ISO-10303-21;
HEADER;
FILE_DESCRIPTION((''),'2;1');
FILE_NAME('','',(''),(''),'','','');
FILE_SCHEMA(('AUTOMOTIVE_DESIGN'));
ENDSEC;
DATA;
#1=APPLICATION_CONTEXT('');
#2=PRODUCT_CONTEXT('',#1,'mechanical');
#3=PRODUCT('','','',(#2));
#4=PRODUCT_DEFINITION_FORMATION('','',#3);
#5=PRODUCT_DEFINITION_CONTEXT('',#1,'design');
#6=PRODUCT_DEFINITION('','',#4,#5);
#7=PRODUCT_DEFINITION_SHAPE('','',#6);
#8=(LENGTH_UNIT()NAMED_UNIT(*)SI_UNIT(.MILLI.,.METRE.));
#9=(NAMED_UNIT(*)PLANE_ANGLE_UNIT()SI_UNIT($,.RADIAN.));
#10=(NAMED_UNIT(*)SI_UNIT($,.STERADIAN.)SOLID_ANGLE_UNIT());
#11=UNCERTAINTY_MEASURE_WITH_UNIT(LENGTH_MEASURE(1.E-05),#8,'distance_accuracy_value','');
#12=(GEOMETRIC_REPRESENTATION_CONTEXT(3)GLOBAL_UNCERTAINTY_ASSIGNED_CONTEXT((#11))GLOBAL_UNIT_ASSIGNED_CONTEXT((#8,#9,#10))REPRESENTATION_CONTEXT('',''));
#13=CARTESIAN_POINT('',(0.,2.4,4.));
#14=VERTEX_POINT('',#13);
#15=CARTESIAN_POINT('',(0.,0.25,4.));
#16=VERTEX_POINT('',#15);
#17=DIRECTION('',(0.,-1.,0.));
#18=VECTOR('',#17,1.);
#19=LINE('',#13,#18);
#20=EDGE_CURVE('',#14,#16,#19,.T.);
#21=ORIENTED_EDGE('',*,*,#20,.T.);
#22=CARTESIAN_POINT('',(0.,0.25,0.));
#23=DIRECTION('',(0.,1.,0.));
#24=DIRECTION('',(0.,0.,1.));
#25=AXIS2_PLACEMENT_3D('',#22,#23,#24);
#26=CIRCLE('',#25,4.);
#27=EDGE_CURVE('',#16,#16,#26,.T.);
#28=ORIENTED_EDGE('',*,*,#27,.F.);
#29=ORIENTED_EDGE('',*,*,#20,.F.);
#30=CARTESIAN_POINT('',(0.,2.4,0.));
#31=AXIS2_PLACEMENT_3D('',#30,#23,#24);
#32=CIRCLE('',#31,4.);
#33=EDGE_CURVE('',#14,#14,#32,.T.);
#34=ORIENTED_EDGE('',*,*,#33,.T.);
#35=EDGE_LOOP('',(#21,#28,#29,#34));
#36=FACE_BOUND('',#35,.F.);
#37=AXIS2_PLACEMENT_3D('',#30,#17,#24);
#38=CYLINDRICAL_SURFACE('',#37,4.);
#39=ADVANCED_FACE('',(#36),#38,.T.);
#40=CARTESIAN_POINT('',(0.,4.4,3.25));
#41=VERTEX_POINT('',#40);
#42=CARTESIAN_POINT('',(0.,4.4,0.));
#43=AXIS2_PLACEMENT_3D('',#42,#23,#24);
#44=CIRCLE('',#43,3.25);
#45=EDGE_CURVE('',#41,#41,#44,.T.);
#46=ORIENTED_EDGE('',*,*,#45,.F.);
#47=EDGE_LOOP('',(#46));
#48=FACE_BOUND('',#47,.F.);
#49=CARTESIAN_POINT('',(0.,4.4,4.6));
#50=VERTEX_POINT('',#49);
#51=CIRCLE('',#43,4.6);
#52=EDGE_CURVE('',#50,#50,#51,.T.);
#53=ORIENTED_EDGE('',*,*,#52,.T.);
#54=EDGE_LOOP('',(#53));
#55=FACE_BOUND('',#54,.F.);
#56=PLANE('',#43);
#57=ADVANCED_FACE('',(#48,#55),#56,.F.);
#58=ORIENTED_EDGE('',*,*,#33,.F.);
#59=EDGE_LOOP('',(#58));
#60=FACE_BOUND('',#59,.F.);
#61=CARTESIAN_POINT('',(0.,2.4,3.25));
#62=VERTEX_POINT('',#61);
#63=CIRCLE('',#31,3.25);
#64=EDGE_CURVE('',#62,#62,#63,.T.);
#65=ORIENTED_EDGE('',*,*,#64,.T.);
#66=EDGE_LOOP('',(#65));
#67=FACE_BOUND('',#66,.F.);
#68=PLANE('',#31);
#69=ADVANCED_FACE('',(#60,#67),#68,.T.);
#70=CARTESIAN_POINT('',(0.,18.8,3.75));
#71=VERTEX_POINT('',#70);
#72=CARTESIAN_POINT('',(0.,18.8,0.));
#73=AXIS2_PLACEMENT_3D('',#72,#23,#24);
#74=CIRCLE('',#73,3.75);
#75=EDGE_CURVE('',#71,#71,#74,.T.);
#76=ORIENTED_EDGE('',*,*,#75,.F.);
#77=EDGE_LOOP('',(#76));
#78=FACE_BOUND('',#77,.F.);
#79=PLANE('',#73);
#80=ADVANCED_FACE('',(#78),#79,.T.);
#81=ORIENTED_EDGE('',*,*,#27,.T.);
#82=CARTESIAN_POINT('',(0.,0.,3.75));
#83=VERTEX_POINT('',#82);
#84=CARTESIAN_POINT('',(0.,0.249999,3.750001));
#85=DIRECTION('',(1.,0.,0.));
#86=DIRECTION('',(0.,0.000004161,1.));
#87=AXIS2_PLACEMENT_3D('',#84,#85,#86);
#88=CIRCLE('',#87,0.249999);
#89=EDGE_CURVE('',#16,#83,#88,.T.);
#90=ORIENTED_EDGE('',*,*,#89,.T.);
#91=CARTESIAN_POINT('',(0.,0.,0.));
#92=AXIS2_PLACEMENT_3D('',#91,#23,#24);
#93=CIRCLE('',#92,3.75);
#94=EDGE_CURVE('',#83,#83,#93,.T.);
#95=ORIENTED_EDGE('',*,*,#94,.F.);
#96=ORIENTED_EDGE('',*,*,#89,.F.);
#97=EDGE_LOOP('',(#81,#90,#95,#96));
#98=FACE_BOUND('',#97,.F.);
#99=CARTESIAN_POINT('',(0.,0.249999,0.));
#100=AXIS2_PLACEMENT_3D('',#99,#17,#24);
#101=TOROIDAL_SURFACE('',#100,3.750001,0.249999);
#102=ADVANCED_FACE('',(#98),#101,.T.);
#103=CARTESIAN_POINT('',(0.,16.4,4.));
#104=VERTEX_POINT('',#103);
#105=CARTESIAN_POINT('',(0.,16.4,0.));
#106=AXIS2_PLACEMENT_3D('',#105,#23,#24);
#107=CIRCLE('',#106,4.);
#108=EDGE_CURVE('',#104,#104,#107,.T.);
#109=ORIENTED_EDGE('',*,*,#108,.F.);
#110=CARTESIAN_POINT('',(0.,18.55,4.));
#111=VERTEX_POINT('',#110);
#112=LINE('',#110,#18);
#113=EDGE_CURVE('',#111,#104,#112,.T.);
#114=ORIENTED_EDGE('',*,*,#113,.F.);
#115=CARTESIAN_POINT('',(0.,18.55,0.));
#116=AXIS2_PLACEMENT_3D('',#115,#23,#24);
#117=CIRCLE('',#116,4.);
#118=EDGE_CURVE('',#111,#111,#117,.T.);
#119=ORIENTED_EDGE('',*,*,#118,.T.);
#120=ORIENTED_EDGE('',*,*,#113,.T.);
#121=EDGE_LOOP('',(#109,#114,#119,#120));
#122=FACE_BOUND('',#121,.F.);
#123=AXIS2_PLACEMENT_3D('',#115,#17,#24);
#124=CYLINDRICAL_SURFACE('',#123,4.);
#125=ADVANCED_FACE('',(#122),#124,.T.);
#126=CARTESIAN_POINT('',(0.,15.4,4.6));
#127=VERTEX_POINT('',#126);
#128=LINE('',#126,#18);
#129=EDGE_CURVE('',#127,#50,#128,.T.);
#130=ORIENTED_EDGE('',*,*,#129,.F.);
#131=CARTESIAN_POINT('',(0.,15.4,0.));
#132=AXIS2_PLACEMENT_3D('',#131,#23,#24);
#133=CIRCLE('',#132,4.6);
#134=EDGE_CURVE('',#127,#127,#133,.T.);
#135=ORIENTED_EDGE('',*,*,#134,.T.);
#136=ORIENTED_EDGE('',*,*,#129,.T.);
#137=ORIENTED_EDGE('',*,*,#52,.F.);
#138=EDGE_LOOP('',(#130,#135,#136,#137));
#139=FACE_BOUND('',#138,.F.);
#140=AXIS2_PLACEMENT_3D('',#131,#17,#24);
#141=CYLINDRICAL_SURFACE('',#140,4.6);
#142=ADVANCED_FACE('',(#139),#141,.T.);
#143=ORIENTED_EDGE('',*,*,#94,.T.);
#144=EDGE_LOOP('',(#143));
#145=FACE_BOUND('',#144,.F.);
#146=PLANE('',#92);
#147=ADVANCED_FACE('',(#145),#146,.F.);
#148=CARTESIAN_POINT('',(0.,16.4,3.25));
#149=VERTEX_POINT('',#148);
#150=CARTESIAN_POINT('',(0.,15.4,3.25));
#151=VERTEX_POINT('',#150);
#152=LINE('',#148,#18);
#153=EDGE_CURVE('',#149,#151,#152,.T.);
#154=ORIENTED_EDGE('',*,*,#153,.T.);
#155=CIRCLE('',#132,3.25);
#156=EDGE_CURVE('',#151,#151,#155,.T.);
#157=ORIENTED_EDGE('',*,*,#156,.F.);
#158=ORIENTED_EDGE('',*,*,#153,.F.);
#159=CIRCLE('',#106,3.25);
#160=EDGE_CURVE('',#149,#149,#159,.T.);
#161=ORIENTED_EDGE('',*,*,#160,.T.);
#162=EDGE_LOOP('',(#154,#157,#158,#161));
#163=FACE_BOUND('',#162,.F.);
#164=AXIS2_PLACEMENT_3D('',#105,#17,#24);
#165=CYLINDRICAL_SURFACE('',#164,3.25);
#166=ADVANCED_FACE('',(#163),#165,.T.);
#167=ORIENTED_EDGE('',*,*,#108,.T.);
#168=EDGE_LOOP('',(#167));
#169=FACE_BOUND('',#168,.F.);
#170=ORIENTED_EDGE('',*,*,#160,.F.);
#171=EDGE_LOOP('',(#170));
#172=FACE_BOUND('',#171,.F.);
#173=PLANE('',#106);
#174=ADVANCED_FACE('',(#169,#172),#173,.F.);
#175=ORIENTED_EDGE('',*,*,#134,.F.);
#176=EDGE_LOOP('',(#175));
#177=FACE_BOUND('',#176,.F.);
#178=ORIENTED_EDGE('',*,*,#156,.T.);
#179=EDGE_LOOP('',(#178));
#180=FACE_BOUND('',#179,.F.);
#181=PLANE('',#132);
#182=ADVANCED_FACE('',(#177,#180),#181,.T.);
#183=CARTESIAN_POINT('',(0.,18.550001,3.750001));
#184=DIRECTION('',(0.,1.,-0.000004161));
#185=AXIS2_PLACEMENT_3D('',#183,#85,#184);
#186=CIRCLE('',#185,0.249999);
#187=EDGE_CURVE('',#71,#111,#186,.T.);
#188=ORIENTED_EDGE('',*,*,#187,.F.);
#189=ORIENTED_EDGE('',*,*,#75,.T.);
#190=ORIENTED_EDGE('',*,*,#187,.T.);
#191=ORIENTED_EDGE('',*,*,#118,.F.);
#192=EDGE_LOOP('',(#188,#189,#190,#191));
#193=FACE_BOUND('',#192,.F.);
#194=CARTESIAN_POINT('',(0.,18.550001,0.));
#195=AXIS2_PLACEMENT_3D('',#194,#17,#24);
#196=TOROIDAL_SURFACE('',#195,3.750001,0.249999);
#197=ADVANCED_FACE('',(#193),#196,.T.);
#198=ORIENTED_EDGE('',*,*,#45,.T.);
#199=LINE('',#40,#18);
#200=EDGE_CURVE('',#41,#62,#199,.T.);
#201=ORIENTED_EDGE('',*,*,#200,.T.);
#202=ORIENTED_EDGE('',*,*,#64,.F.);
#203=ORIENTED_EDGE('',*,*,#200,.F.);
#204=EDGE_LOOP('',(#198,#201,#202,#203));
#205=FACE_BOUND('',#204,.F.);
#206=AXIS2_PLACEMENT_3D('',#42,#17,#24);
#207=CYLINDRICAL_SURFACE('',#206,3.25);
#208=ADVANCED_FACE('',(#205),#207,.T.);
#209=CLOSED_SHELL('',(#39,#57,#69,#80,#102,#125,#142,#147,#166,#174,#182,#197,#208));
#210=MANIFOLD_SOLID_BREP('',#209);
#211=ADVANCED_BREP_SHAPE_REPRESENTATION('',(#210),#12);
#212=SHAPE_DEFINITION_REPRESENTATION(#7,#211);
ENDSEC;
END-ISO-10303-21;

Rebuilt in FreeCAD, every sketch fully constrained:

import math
import FreeCAD as App
import Part
import Sketcher

doc = App.newDocument("Part")
body = doc.addObject("PartDesign::Body", "Body")

# Sketch on YZ plane
sketch1 = doc.addObject("Sketcher::SketchObject", "Sketch")
body.addObject(sketch1)
sketch1.AttachmentSupport = (doc.YZ_Plane, [""])
sketch1.MapMode = "FlatFace"
sketch1.addGeometry([
    Part.LineSegment(App.Vector(0, 3.75, 0), App.Vector(0, 0, 0)),  # 0
    Part.LineSegment(App.Vector(0, 0, 0), App.Vector(18.8, 0, 0)),  # 1
    Part.LineSegment(App.Vector(18.8, 0, 0), App.Vector(18.8, 3.75, 0)),  # 2
    Part.ArcOfCircle(Part.Circle(App.Vector(18.55, 3.75, 0), App.Vector(0, 0, 1), 0.25), math.radians(0), math.radians(90)),  # 3
    Part.LineSegment(App.Vector(18.55, 4, 0), App.Vector(16.4, 4, 0)),  # 4
    Part.LineSegment(App.Vector(16.4, 4, 0), App.Vector(16.4, 3.25, 0)),  # 5
    Part.LineSegment(App.Vector(16.4, 3.25, 0), App.Vector(15.4, 3.25, 0)),  # 6
    Part.LineSegment(App.Vector(15.4, 3.25, 0), App.Vector(15.4, 4.6, 0)),  # 7
    Part.LineSegment(App.Vector(15.4, 4.6, 0), App.Vector(4.4, 4.6, 0)),  # 8
    Part.LineSegment(App.Vector(4.4, 4.6, 0), App.Vector(4.4, 3.25, 0)),  # 9
    Part.LineSegment(App.Vector(4.4, 3.25, 0), App.Vector(2.4, 3.25, 0)),  # 10
    Part.LineSegment(App.Vector(2.4, 3.25, 0), App.Vector(2.4, 4, 0)),  # 11
    Part.LineSegment(App.Vector(2.4, 4, 0), App.Vector(0.25, 4, 0)),  # 12
    Part.ArcOfCircle(Part.Circle(App.Vector(0.25, 3.75, 0), App.Vector(0, 0, 1), 0.25), math.radians(90), math.radians(180)),  # 13
], False)
sketch1.addConstraint([
    Sketcher.Constraint("Coincident", 0, 2, 1, 1),
    Sketcher.Constraint("Coincident", 1, 2, 2, 1),
    Sketcher.Constraint("Coincident", 2, 2, 3, 1),
    Sketcher.Constraint("Coincident", 3, 2, 4, 1),
    Sketcher.Constraint("Coincident", 4, 2, 5, 1),
    Sketcher.Constraint("Coincident", 5, 2, 6, 1),
    Sketcher.Constraint("Coincident", 6, 2, 7, 1),
    Sketcher.Constraint("Coincident", 7, 2, 8, 1),
    Sketcher.Constraint("Coincident", 8, 2, 9, 1),
    Sketcher.Constraint("Coincident", 9, 2, 10, 1),
    Sketcher.Constraint("Coincident", 10, 2, 11, 1),
    Sketcher.Constraint("Coincident", 11, 2, 12, 1),
    Sketcher.Constraint("Coincident", 12, 2, 13, 1),
    Sketcher.Constraint("Coincident", 13, 2, 0, 1),
    Sketcher.Constraint("Vertical", 0),
    Sketcher.Constraint("Horizontal", 1),
    Sketcher.Constraint("Vertical", 2),
    Sketcher.Constraint("Horizontal", 4),
    Sketcher.Constraint("Vertical", 5),
    Sketcher.Constraint("Horizontal", 6),
    Sketcher.Constraint("Vertical", 7),
    Sketcher.Constraint("Horizontal", 8),
    Sketcher.Constraint("Vertical", 9),
    Sketcher.Constraint("Horizontal", 10),
    Sketcher.Constraint("Vertical", 11),
    Sketcher.Constraint("Horizontal", 12),
    Sketcher.Constraint("Coincident", 0, 2, -1, 1),
    Sketcher.Constraint("Equal", 3, 13),
    Sketcher.Constraint("Horizontal", 3, 3, 13, 3),
    Sketcher.Constraint("Horizontal", 13, 3, 2, 2),
    Sketcher.Constraint("Horizontal", 6, 2, 9, 2),
    Sketcher.Constraint("Horizontal", 2, 2, 13, 2),
    Sketcher.Constraint("Vertical", 13, 3, 12, 2),
    Sketcher.Constraint("Equal", 4, 12),
    Sketcher.Constraint("DistanceX", 6, 2, 6, 1, 1.0),
    Sketcher.Constraint("DistanceX", 8, 2, 8, 1, 11.0),
    Sketcher.Constraint("DistanceX", 10, 2, 10, 1, 2.0),
    Sketcher.Constraint("Radius", 3, 0.249999),
    Sketcher.Constraint("DistanceX", 1, 1, 1, 2, 18.8),
    Sketcher.Constraint("DistanceY", -1, 1, 3, 2, 4.0),
    Sketcher.Constraint("DistanceX", 4, 2, 4, 1, 2.15),
    Sketcher.Constraint("DistanceY", 5, 2, 5, 1, 0.75),
    Sketcher.Constraint("DistanceY", 7, 1, 7, 2, 1.35),
])
revolution = doc.addObject("PartDesign::Revolution", "Revolution")
body.addObject(revolution)
revolution.Profile = sketch1
revolution.ReferenceAxis = (sketch1, ["H_Axis"])
revolution.Angle = 360

doc.recompute()
